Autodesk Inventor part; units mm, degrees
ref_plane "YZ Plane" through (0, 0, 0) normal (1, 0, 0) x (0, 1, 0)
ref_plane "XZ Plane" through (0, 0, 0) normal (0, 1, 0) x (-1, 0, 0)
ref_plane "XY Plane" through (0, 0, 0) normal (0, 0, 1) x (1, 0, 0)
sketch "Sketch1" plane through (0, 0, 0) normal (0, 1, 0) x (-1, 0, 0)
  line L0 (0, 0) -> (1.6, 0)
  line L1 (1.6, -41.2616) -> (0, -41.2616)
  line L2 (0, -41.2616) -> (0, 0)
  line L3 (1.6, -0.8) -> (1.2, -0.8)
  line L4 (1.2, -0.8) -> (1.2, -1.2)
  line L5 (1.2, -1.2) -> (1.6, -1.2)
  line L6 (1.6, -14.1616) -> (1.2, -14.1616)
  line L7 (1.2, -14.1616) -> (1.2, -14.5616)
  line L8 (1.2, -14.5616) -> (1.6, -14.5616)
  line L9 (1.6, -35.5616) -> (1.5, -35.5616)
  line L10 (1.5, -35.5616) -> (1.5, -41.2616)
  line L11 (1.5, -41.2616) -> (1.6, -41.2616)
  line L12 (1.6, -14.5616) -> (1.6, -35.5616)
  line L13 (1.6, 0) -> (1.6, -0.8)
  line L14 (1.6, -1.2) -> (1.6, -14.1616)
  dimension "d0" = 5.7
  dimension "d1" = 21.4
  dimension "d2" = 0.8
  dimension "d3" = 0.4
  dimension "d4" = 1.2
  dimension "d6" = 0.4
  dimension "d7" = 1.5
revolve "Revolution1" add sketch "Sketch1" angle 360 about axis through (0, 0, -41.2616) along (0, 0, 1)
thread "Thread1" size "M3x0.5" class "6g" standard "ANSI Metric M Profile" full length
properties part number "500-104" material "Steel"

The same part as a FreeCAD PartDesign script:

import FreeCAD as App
import Part
import Sketcher

V = App.Vector
Q = App.Units.Quantity


def add_polygon(sketch, points):
    """Adds a closed chain of lines whose ends are joined by coincident constraints."""
    first, n = sketch.GeometryCount, len(points)
    for a, b in zip(points, points[1:] + points[:1]):
        sketch.addGeometry(Part.LineSegment(App.Vector(*a, 0), App.Vector(*b, 0)), False)
    for i in range(n):
        sketch.addConstraint(Sketcher.Constraint("Coincident", first + i, 2, first + (i + 1) % n, 1))

doc = App.newDocument("Part")
body = doc.addObject("PartDesign::Body", "Body")

sketch1 = body.newObject("Sketcher::SketchObject", "Sketch")
sketch1.AttachmentSupport = (doc.getObject("XZ_Plane"), [""])
sketch1.MapMode = "FlatFace"
add_polygon(sketch1, [(-1.6, 0), (0, 0), (0, -41.26), (-1.5, -41.26), (-1.5, -35.56), (-1.6, -35.56), (-1.6, -14.56), (-1.2, -14.56), (-1.2, -14.16), (-1.6, -14.16), (-1.6, -1.2), (-1.2, -1.2), (-1.2, -0.8), (-1.6, -0.8)])
sketch1.addConstraint([
    Sketcher.Constraint("Horizontal", 0),
    Sketcher.Constraint("Vertical", 1),
    Sketcher.Constraint("Horizontal", 2),
    Sketcher.Constraint("Vertical", 3),
    Sketcher.Constraint("Horizontal", 4),
    Sketcher.Constraint("Vertical", 5),
    Sketcher.Constraint("Horizontal", 6),
    Sketcher.Constraint("Vertical", 7),
    Sketcher.Constraint("Horizontal", 8),
    Sketcher.Constraint("Vertical", 9),
    Sketcher.Constraint("Horizontal", 10),
    Sketcher.Constraint("Vertical", 11),
    Sketcher.Constraint("Horizontal", 12),
    Sketcher.Constraint("Vertical", 13),
    Sketcher.Constraint("Coincident", 0, 2, -1, 1),
    Sketcher.Constraint("Vertical", 5, 2, 8, 2),
    Sketcher.Constraint("Vertical", 7, 2, 10, 2),
    Sketcher.Constraint("Vertical", 9, 2, 12, 2),
    Sketcher.Constraint("Equal", 12, 7),
    Sketcher.Constraint("Equal", 7, 11),
    Sketcher.Constraint("DistanceX", 2, 2, 2, 1, Q("1.5 mm")),
    Sketcher.Constraint("DistanceX", 6, 1, 6, 2, Q("0.4 mm")),
    Sketcher.Constraint("DistanceY", 3, 1, 3, 2, Q("5.7 mm")),
    Sketcher.Constraint("DistanceY", 13, 1, 13, 2, Q("0.8 mm")),
    Sketcher.Constraint("DistanceX", 6, 2, -1, 1, Q("1.2 mm")),
    Sketcher.Constraint("DistanceY", 3, 2, 7, 2, Q("21.4 mm")),
    Sketcher.Constraint("DistanceY", 1, 2, 1, 1, Q("41.2616 mm")),
])
revolution = body.newObject("PartDesign::Revolution", "Revolution")
revolution.Profile = sketch1
revolution.ReferenceAxis = (sketch1, ["V_Axis"])
revolution.Angle = 360

doc.recompute()
